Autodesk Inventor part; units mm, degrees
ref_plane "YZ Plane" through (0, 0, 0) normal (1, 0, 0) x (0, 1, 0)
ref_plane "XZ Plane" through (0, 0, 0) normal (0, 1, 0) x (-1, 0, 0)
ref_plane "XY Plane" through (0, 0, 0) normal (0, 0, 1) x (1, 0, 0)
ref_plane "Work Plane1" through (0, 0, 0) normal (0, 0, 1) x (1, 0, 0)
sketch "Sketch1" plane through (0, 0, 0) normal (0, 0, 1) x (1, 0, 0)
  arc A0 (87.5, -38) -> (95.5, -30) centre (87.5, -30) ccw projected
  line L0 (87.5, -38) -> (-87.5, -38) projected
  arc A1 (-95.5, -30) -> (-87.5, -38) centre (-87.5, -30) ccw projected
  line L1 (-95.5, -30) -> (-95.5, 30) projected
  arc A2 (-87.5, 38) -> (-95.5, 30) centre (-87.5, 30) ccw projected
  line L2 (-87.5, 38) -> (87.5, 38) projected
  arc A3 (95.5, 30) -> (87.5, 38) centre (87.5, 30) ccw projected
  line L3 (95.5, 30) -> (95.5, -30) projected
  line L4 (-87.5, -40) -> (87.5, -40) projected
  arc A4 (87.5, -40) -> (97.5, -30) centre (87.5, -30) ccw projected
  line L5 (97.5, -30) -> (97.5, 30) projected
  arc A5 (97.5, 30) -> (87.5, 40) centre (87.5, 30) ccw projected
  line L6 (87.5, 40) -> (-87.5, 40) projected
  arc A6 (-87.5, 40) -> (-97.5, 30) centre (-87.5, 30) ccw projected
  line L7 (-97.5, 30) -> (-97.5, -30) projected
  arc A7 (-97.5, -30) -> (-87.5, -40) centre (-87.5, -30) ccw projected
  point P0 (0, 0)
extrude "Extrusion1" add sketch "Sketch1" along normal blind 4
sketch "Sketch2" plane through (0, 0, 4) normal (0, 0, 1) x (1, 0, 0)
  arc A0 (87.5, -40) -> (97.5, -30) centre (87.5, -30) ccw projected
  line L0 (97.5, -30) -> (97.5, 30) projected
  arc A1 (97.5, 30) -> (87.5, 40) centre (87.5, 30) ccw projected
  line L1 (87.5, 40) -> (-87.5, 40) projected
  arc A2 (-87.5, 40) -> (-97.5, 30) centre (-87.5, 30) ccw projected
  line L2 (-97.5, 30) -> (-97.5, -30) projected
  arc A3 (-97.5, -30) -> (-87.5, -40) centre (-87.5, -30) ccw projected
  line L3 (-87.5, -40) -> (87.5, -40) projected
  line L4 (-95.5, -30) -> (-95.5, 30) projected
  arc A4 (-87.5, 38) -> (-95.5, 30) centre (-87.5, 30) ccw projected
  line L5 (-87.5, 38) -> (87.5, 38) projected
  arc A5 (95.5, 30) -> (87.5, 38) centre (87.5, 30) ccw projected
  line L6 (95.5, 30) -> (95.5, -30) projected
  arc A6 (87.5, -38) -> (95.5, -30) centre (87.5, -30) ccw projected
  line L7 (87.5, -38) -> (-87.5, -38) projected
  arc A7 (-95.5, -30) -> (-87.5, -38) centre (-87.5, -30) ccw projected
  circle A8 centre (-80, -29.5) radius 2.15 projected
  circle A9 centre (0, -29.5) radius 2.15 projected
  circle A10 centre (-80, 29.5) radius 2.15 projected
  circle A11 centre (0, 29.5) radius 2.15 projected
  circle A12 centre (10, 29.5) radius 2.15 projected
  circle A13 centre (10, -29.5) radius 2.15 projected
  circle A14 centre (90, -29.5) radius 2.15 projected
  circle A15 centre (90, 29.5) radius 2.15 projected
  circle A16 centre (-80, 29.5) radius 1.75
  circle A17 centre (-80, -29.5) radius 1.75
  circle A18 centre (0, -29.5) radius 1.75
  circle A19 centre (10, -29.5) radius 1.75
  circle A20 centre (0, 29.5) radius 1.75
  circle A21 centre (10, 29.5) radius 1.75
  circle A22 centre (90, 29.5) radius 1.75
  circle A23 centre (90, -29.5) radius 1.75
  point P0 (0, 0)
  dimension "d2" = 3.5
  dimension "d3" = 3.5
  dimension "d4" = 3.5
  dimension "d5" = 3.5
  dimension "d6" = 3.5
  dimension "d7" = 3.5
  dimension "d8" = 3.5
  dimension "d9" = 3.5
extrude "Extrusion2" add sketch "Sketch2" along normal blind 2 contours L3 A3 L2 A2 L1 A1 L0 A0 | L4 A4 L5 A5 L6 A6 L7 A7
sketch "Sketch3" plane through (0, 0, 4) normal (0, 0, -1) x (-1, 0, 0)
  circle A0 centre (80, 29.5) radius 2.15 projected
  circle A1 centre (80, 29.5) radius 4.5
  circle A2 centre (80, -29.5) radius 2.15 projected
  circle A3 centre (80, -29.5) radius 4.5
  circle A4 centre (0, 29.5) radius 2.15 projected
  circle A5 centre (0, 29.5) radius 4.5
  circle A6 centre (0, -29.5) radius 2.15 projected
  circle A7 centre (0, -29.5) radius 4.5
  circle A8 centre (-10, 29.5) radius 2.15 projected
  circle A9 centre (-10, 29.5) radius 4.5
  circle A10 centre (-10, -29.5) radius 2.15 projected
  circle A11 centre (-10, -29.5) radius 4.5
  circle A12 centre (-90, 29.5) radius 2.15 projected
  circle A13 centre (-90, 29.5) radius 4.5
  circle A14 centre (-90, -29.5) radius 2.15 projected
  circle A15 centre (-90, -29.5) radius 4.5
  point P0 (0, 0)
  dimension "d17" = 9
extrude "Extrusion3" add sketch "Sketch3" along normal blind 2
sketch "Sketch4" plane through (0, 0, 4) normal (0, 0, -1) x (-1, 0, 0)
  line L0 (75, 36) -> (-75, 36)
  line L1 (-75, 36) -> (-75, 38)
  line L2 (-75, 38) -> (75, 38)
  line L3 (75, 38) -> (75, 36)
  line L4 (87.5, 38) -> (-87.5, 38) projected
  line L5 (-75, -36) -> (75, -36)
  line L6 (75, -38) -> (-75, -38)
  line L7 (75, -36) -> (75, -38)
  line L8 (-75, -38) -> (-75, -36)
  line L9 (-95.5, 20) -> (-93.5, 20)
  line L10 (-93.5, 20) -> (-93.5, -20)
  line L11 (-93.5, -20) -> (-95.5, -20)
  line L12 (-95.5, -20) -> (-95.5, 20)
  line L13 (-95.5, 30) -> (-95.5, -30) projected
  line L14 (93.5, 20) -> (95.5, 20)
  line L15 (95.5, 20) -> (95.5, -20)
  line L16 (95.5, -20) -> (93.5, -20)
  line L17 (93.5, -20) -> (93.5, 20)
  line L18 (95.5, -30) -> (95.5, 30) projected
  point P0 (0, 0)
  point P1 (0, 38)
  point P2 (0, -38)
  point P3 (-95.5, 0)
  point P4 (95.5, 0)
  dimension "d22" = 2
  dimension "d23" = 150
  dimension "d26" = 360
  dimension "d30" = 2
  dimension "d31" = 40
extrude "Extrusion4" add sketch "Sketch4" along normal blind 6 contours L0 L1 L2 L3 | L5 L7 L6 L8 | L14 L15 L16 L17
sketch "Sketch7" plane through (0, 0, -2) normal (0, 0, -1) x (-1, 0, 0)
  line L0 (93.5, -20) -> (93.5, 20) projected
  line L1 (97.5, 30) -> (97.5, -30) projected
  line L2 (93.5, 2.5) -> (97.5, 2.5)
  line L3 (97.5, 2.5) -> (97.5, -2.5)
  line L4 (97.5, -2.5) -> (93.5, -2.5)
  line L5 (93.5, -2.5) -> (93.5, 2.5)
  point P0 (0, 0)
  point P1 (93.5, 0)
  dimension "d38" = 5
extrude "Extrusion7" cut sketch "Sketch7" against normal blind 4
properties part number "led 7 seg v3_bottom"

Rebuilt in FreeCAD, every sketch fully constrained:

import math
import FreeCAD as App
import Part
import Sketcher

V = App.Vector
Q = App.Units.Quantity

doc = App.newDocument("Part")
params = doc.addObject("Spreadsheet::Sheet", "Params")
for row, (alias, value) in enumerate([
    ("sketch1_radius", "10 mm"),
    ("sketch1_radius2", "8 mm"),
    ("sketch1_width", "175 mm"),
    ("sketch1_height", "60 mm"),
    ("pad1_length", "4 mm"),
    ("sketch2_radius", "10 mm"),
    ("sketch2_diameter", "4.3 mm"),
    ("sketch2_width", "175 mm"),
    ("sketch2_height", "60 mm"),
    ("pad2_length", "2 mm"),
    ("sketch3_diameter", "9 mm"),
    ("sketch3_diameter2", "4.3 mm"),
    ("pad3_length", "2 mm"),
    ("sketch4_width", "150 mm"),
    ("sketch4_width2", "2 mm"),
    ("sketch4_height", "40 mm"),
    ("pad4_length", "6 mm"),
    ("sketch5_height", "5 mm"),
    ("sketch5_width", "4 mm"),
    ("pocket1_length", "4 mm"),
], start=1):
    params.set(f"A{row}", alias)
    params.set(f"B{row}", "=" + value)
    params.setAlias(f"B{row}", alias)

body = doc.addObject("PartDesign::Body", "Body")

# Sketch on XY plane
sketch1 = doc.addObject("Sketcher::SketchObject", "Sketch")
body.addObject(sketch1)
sketch1.AttachmentSupport = (doc.XY_Plane, [""])
sketch1.MapMode = "FlatFace"
sketch1.addGeometry([
    Part.ArcOfCircle(Part.Circle(V(-88, -30, 0), V(0, 0, 1), 10), math.radians(180), math.radians(270)),  # 0
    Part.LineSegment(V(-88, -40, 0), V(88, -40, 0)),  # 1
    Part.ArcOfCircle(Part.Circle(V(88, -30, 0), V(0, 0, 1), 10), math.radians(-90), math.radians(0)),  # 2
    Part.LineSegment(V(98, -30, 0), V(98, 30, 0)),  # 3
    Part.ArcOfCircle(Part.Circle(V(88, 30, 0), V(0, 0, 1), 10), math.radians(0), math.radians(90)),  # 4
    Part.LineSegment(V(88, 40, 0), V(-88, 40, 0)),  # 5
    Part.ArcOfCircle(Part.Circle(V(-88, 30, 0), V(0, 0, 1), 10), math.radians(90), math.radians(180)),  # 6
    Part.LineSegment(V(-98, 30, 0), V(-98, -30, 0)),  # 7
    Part.ArcOfCircle(Part.Circle(V(88, -30, 0), V(0, 0, 1), 8), math.radians(-90), math.radians(0)),  # 8
    Part.LineSegment(V(88, -38, 0), V(-88, -38, 0)),  # 9
    Part.ArcOfCircle(Part.Circle(V(-88, -30, 0), V(0, 0, 1), 8), math.radians(180), math.radians(270)),  # 10
    Part.LineSegment(V(-96, -30, 0), V(-96, 30, 0)),  # 11
    Part.ArcOfCircle(Part.Circle(V(-88, 30, 0), V(0, 0, 1), 8), math.radians(90), math.radians(180)),  # 12
    Part.LineSegment(V(-88, 38, 0), V(88, 38, 0)),  # 13
    Part.ArcOfCircle(Part.Circle(V(88, 30, 0), V(0, 0, 1), 8), math.radians(0), math.radians(90)),  # 14
    Part.LineSegment(V(96, 30, 0), V(96, -30, 0)),  # 15
], False)
sketch1.addConstraint([
    Sketcher.Constraint("Tangent", 0, 2, 1, 1),
    Sketcher.Constraint("Tangent", 1, 2, 2, 1),
    Sketcher.Constraint("Tangent", 2, 2, 3, 1),
    Sketcher.Constraint("Tangent", 3, 2, 4, 1),
    Sketcher.Constraint("Tangent", 4, 2, 5, 1),
    Sketcher.Constraint("Tangent", 5, 2, 6, 1),
    Sketcher.Constraint("Tangent", 6, 2, 7, 1),
    Sketcher.Constraint("Tangent", 7, 2, 0, 1),
    Sketcher.Constraint("Tangent", 8, 1, 9, 1),
    Sketcher.Constraint("Tangent", 9, 2, 10, 2),
    Sketcher.Constraint("Tangent", 10, 1, 11, 1),
    Sketcher.Constraint("Tangent", 11, 2, 12, 2),
    Sketcher.Constraint("Tangent", 12, 1, 13, 1),
    Sketcher.Constraint("Tangent", 13, 2, 14, 2),
    Sketcher.Constraint("Tangent", 14, 1, 15, 1),
    Sketcher.Constraint("Tangent", 15, 2, 8, 2),
    Sketcher.Constraint("Horizontal", 1),
    Sketcher.Constraint("Vertical", 3),
    Sketcher.Constraint("Horizontal", 5),
    Sketcher.Constraint("Vertical", 7),
    Sketcher.Constraint("Horizontal", 9),
    Sketcher.Constraint("Vertical", 11),
    Sketcher.Constraint("Horizontal", 13),
    Sketcher.Constraint("Vertical", 15),
    Sketcher.Constraint("Coincident", 8, 3, 2, 3),
    Sketcher.Constraint("Coincident", 10, 3, 0, 3),
    Sketcher.Constraint("Coincident", 12, 3, 6, 3),
    Sketcher.Constraint("Equal", 0, 2),
    Sketcher.Constraint("Equal", 2, 4),
    Sketcher.Constraint("Equal", 4, 6),
    Sketcher.Constraint("Equal", 12, 14),
    Sketcher.Constraint("Symmetric", 0, 3, 4, 3, -1, 1),
    Sketcher.Constraint("Radius", 0, Q("10 mm")),
    Sketcher.Constraint("Radius", 8, Q("8 mm")),
    Sketcher.Constraint("DistanceX", 1, 1, 1, 2, Q("175 mm")),
    Sketcher.Constraint("DistanceY", 3, 1, 3, 2, Q("60 mm")),
])
sketch1.setExpression("Constraints[32]", "Params.sketch1_radius")
sketch1.setExpression("Constraints[33]", "Params.sketch1_radius2")
sketch1.setExpression("Constraints[34]", "Params.sketch1_width")
sketch1.setExpression("Constraints[35]", "Params.sketch1_height")
pad1 = doc.addObject("PartDesign::Pad", "Pad")
body.addObject(pad1)
pad1.Profile = sketch1
pad1.setExpression("Length", "Params.pad1_length")

# Sketch on XY plane
sketch2 = doc.addObject("Sketcher::SketchObject", "Sketch001")
body.addObject(sketch2)
sketch2.AttachmentSupport = (doc.XY_Plane, [""])
sketch2.MapMode = "FlatFace"
sketch2.AttachmentOffset = App.Placement(V(0, 0, 4), App.Rotation())
sketch2.addGeometry([
    Part.LineSegment(V(-87.5, -40, 0), V(87.5, -40, 0)),  # 0
    Part.ArcOfCircle(Part.Circle(V(87.5, -30, 0), V(0, 0, 1), 10), math.radians(-90), math.radians(0)),  # 1
    Part.LineSegment(V(97.5, -30, 0), V(97.5, 30, 0)),  # 2
    Part.ArcOfCircle(Part.Circle(V(87.5, 30, 0), V(0, 0, 1), 10), math.radians(0), math.radians(90)),  # 3
    Part.LineSegment(V(87.5, 40, 0), V(-87.5, 40, 0)),  # 4
    Part.ArcOfCircle(Part.Circle(V(-87.5, 30, 0), V(0, 0, 1), 10), math.radians(90), math.radians(180)),  # 5
    Part.LineSegment(V(-97.5, 30, 0), V(-97.5, -30, 0)),  # 6
    Part.ArcOfCircle(Part.Circle(V(-87.5, -30, 0), V(0, 0, 1), 10), math.radians(180), math.radians(270)),  # 7
    Part.Circle(V(-80, -29.5, 0), V(0, 0, 1), 2.1),  # 8
    Part.Circle(V(0, -29.5, 0), V(0, 0, 1), 2.1),  # 9
    Part.Circle(V(10, -29.5, 0), V(0, 0, 1), 2.1),  # 10
    Part.Circle(V(90, -29.5, 0), V(0, 0, 1), 2.1),  # 11
    Part.Circle(V(-80, 29.5, 0), V(0, 0, 1), 2.1),  # 12
    Part.Circle(V(0, 29.5, 0), V(0, 0, 1), 2.1),  # 13
    Part.Circle(V(10, 29.5, 0), V(0, 0, 1), 2.1),  # 14
    Part.Circle(V(90, 29.5, 0), V(0, 0, 1), 2.1),  # 15
], False)
sketch2.addConstraint([
    Sketcher.Constraint("Tangent", 0, 2, 1, 1),
    Sketcher.Constraint("Tangent", 1, 2, 2, 1),
    Sketcher.Constraint("Tangent", 2, 2, 3, 1),
    Sketcher.Constraint("Tangent", 3, 2, 4, 1),
    Sketcher.Constraint("Tangent", 4, 2, 5, 1),
    Sketcher.Constraint("Tangent", 5, 2, 6, 1),
    Sketcher.Constraint("Tangent", 6, 2, 7, 1),
    Sketcher.Constraint("Tangent", 7, 2, 0, 1),
    Sketcher.Constraint("Horizontal", 0),
    Sketcher.Constraint("Vertical", 2),
    Sketcher.Constraint("Horizontal", 4),
    Sketcher.Constraint("Vertical", 6),
    Sketcher.Constraint("Equal", 1, 3),
    Sketcher.Constraint("Equal", 3, 5),
    Sketcher.Constraint("Equal", 5, 7),
    Sketcher.Constraint("Equal", 8, 9),
    Sketcher.Constraint("Equal", 9, 10),
    Sketcher.Constraint("Equal", 10, 11),
    Sketcher.Constraint("Equal", 11, 12),
    Sketcher.Constraint("Equal", 12, 13),
    Sketcher.Constraint("Equal", 13, 14),
    Sketcher.Constraint("Equal", 14, 15),
    Sketcher.Constraint("Symmetric", 1, 3, 5, 3, -1, 1),
    Sketcher.Constraint("Symmetric", 9, 3, 13, 3, -1, 1),
    Sketcher.Constraint("Symmetric", 8, 3, 12, 3, -1),
    Sketcher.Constraint("Symmetric", 10, 3, 14, 3, -1),
    Sketcher.Constraint("Symmetric", 11, 3, 15, 3, -1),
    Sketcher.Constraint("PointOnObject", 9, 3, -2),
    Sketcher.Constraint("Horizontal", 8, 3, 9, 3),
    Sketcher.Constraint("Horizontal", 9, 3, 10, 3),
    Sketcher.Constraint("Horizontal", 10, 3, 11, 3),
    Sketcher.Constraint("Radius", 1, Q("10 mm")),
    Sketcher.Constraint("Diameter", 8, Q("4.3 mm")),
    Sketcher.Constraint("DistanceX", 0, 1, 0, 2, Q("175 mm")),
    Sketcher.Constraint("DistanceY", 2, 1, 2, 2, Q("60 mm")),
    Sketcher.Constraint("DistanceX", 8, 3, -1, 1, Q("80 mm")),
    Sketcher.Constraint("DistanceX", -1, 1, 10, 3, Q("10 mm")),
    Sketcher.Constraint("DistanceX", -1, 1, 11, 3, Q("90 mm")),
    Sketcher.Constraint("DistanceY", 8, 3, 12, 3, Q("59 mm")),
])
sketch2.setExpression("Constraints[31]", "Params.sketch2_radius")
sketch2.setExpression("Constraints[32]", "Params.sketch2_diameter")
sketch2.setExpression("Constraints[33]", "Params.sketch2_width")
sketch2.setExpression("Constraints[34]", "Params.sketch2_height")
pad2 = doc.addObject("PartDesign::Pad", "Pad001")
body.addObject(pad2)
pad2.Profile = sketch2
pad2.setExpression("Length", "Params.pad2_length")

# Sketch on XY plane
sketch3 = doc.addObject("Sketcher::SketchObject", "Sketch002")
body.addObject(sketch3)
sketch3.AttachmentSupport = (doc.XY_Plane, [""])
sketch3.MapMode = "FlatFace"
sketch3.AttachmentOffset = App.Placement(V(0, 0, 4), App.Rotation())
sketch3.addGeometry([
    Part.Circle(V(-80, 29.5, 0), V(0, 0, 1), 4.5),  # 0
    Part.Circle(V(-80, 29.5, 0), V(0, 0, 1), 2.1),  # 1
    Part.Circle(V(-80, -29.5, 0), V(0, 0, 1), 4.5),  # 2
    Part.Circle(V(-80, -29.5, 0), V(0, 0, 1), 2.1),  # 3
    Part.Circle(V(0, 29.5, 0), V(0, 0, 1), 4.5),  # 4
    Part.Circle(V(0, 29.5, 0), V(0, 0, 1), 2.1),  # 5
    Part.Circle(V(0, -29.5, 0), V(0, 0, 1), 4.5),  # 6
    Part.Circle(V(0, -29.5, 0), V(0, 0, 1), 2.1),  # 7
    Part.Circle(V(10, 29.5, 0), V(0, 0, 1), 4.5),  # 8
    Part.Circle(V(10, 29.5, 0), V(0, 0, 1), 2.1),  # 9
    Part.Circle(V(10, -29.5, 0), V(0, 0, 1), 4.5),  # 10
    Part.Circle(V(10, -29.5, 0), V(0, 0, 1), 2.1),  # 11
    Part.Circle(V(90, 29.5, 0), V(0, 0, 1), 4.5),  # 12
    Part.Circle(V(90, 29.5, 0), V(0, 0, 1), 2.1),  # 13
    Part.Circle(V(90, -29.5, 0), V(0, 0, 1), 4.5),  # 14
    Part.Circle(V(90, -29.5, 0), V(0, 0, 1), 2.1),  # 15
], False)
sketch3.addConstraint([
    Sketcher.Constraint("Coincident", 1, 3, 0, 3),
    Sketcher.Constraint("Coincident", 3, 3, 2, 3),
    Sketcher.Constraint("Coincident", 5, 3, 4, 3),
    Sketcher.Constraint("Coincident", 7, 3, 6, 3),
    Sketcher.Constraint("Coincident", 9, 3, 8, 3),
    Sketcher.Constraint("Coincident", 11, 3, 10, 3),
    Sketcher.Constraint("Coincident", 13, 3, 12, 3),
    Sketcher.Constraint("Coincident", 15, 3, 14, 3),
    Sketcher.Constraint("Equal", 0, 2),
    Sketcher.Constraint("Equal", 1, 3),
    Sketcher.Constraint("Equal", 2, 4),
    Sketcher.Constraint("Equal", 3, 5),
    Sketcher.Constraint("Equal", 4, 6),
    Sketcher.Constraint("Equal", 5, 7),
    Sketcher.Constraint("Equal", 6, 8),
    Sketcher.Constraint("Equal", 7, 9),
    Sketcher.Constraint("Equal", 8, 10),
    Sketcher.Constraint("Equal", 9, 11),
    Sketcher.Constraint("Equal", 10, 12),
    Sketcher.Constraint("Equal", 11, 13),
    Sketcher.Constraint("Equal", 12, 14),
    Sketcher.Constraint("Equal", 13, 15),
    Sketcher.Constraint("Symmetric", 4, 3, 6, 3, -1, 1),
    Sketcher.Constraint("Symmetric", 0, 3, 2, 3, -1),
    Sketcher.Constraint("Symmetric", 8, 3, 10, 3, -1),
    Sketcher.Constraint("Symmetric", 12, 3, 14, 3, -1),
    Sketcher.Constraint("PointOnObject", 4, 3, -2),
    Sketcher.Constraint("Horizontal", 1, 3, 4, 3),
    Sketcher.Constraint("Horizontal", 5, 3, 8, 3),
    Sketcher.Constraint("Horizontal", 9, 3, 12, 3),
    Sketcher.Constraint("Diameter", 0, Q("9 mm")),
    Sketcher.Constraint("Diameter", 1, Q("4.3 mm")),
    Sketcher.Constraint("DistanceX", 0, 3, -1, 1, Q("80 mm")),
    Sketcher.Constraint("DistanceX", -1, 1, 8, 3, Q("10 mm")),
    Sketcher.Constraint("DistanceX", -1, 1, 12, 3, Q("90 mm")),
    Sketcher.Constraint("DistanceY", 2, 3, 0, 3, Q("59 mm")),
])
sketch3.setExpression("Constraints[30]", "Params.sketch3_diameter")
sketch3.setExpression("Constraints[31]", "Params.sketch3_diameter2")
pad3 = doc.addObject("PartDesign::Pad", "Pad002")
body.addObject(pad3)
pad3.Profile = sketch3
pad3.setExpression("Length", "Params.pad3_length")
pad3.Reversed = True

# Sketch on XY plane
sketch4 = doc.addObject("Sketcher::SketchObject", "Sketch003")
body.addObject(sketch4)
sketch4.AttachmentSupport = (doc.XY_Plane, [""])
sketch4.MapMode = "FlatFace"
sketch4.AttachmentOffset = App.Placement(V(0, 0, 4), App.Rotation())
sketch4.addGeometry([
    Part.LineSegment(V(75, 36, 0), V(-75, 36, 0)),  # 0
    Part.LineSegment(V(-75, 36, 0), V(-75, 38, 0)),  # 1
    Part.LineSegment(V(-75, 38, 0), V(75, 38, 0)),  # 2
    Part.LineSegment(V(75, 38, 0), V(75, 36, 0)),  # 3
    Part.LineSegment(V(-75, -36, 0), V(75, -36, 0)),  # 4
    Part.LineSegment(V(75, -36, 0), V(75, -38, 0)),  # 5
    Part.LineSegment(V(75, -38, 0), V(-75, -38, 0)),  # 6
    Part.LineSegment(V(-75, -38, 0), V(-75, -36, 0)),  # 7
    Part.LineSegment(V(-95.5, 20, 0), V(-93.5, 20, 0)),  # 8
    Part.LineSegment(V(-93.5, 20, 0), V(-93.5, -20, 0)),  # 9
    Part.LineSegment(V(-93.5, -20, 0), V(-95.5, -20, 0)),  # 10
    Part.LineSegment(V(-95.5, -20, 0), V(-95.5, 20, 0)),  # 11
], False)
sketch4.addConstraint([
    Sketcher.Constraint("Coincident", 0, 2, 1, 1),
    Sketcher.Constraint("Coincident", 1, 2, 2, 1),
    Sketcher.Constraint("Coincident", 2, 2, 3, 1),
    Sketcher.Constraint("Coincident", 3, 2, 0, 1),
    Sketcher.Constraint("Coincident", 4, 2, 5, 1),
    Sketcher.Constraint("Coincident", 5, 2, 6, 1),
    Sketcher.Constraint("Coincident", 6, 2, 7, 1),
    Sketcher.Constraint("Coincident", 7, 2, 4, 1),
    Sketcher.Constraint("Coincident", 8, 2, 9, 1),
    Sketcher.Constraint("Coincident", 9, 2, 10, 1),
    Sketcher.Constraint("Coincident", 10, 2, 11, 1),
    Sketcher.Constraint("Coincident", 11, 2, 8, 1),
    Sketcher.Constraint("Horizontal", 0),
    Sketcher.Constraint("Vertical", 1),
    Sketcher.Constraint("Horizontal", 2),
    Sketcher.Constraint("Vertical", 3),
    Sketcher.Constraint("Horizontal", 4),
    Sketcher.Constraint("Vertical", 5),
    Sketcher.Constraint("Horizontal", 6),
    Sketcher.Constraint("Vertical", 7),
    Sketcher.Constraint("Horizontal", 8),
    Sketcher.Constraint("Vertical", 9),
    Sketcher.Constraint("Horizontal", 10),
    Sketcher.Constraint("Vertical", 11),
    Sketcher.Constraint("Symmetric", 0, 2, 4, 2, -1, 1),
    Sketcher.Constraint("Symmetric", 2, 2, 6, 2, -1, 1),
    Sketcher.Constraint("Vertical", 3, 2, 4, 2),
    Sketcher.Constraint("Equal", 10, 1),
    Sketcher.Constraint("DistanceX", 0, 2, 0, 1, Q("150 mm")),
    Sketcher.Constraint("DistanceX", 8, 1, 8, 2, Q("2 mm")),
    Sketcher.Constraint("DistanceY", 9, 2, 9, 1, Q("40 mm")),
    Sketcher.Constraint("DistanceY", -1, 1, 0, 2, Q("36 mm")),
    Sketcher.Constraint("DistanceY", -1, 1, 8, 2, Q("20 mm")),
    Sketcher.Constraint("DistanceX", 8, 2, -1, 1, Q("93.5 mm")),
])
sketch4.setExpression("Constraints[28]", "Params.sketch4_width")
sketch4.setExpression("Constraints[29]", "Params.sketch4_width2")
sketch4.setExpression("Constraints[30]", "Params.sketch4_height")
pad4 = doc.addObject("PartDesign::Pad", "Pad003")
body.addObject(pad4)
pad4.Profile = sketch4
pad4.setExpression("Length", "Params.pad4_length")
pad4.Reversed = True

# Sketch on XY plane
sketch5 = doc.addObject("Sketcher::SketchObject", "Sketch004")
body.addObject(sketch5)
sketch5.AttachmentSupport = (doc.XY_Plane, [""])
sketch5.MapMode = "FlatFace"
sketch5.AttachmentOffset = App.Placement(V(0, 0, -2), App.Rotation())
sketch5.addGeometry([
    Part.LineSegment(V(-93.5, 2.5, 0), V(-93.5, -2.5, 0)),
    Part.LineSegment(V(-93.5, -2.5, 0), V(-97.5, -2.5, 0)),
    Part.LineSegment(V(-97.5, -2.5, 0), V(-97.5, 2.5, 0)),
    Part.LineSegment(V(-97.5, 2.5, 0), V(-93.5, 2.5, 0)),
], False)
sketch5.addConstraint([
    Sketcher.Constraint("Coincident", 0, 2, 1, 1),
    Sketcher.Constraint("Coincident", 1, 2, 2, 1),
    Sketcher.Constraint("Coincident", 2, 2, 3, 1),
    Sketcher.Constraint("Coincident", 3, 2, 0, 1),
    Sketcher.Constraint("Vertical", 0),
    Sketcher.Constraint("Horizontal", 1),
    Sketcher.Constraint("Vertical", 2),
    Sketcher.Constraint("Horizontal", 3),
    Sketcher.Constraint("DistanceY", 0, 2, 0, 1, Q("5 mm")),
    Sketcher.Constraint("DistanceX", 1, 2, 1, 1, Q("4 mm")),
    Sketcher.Constraint("DistanceX", 0, 2, -1, 1, Q("93.5 mm")),
    Sketcher.Constraint("DistanceY", 0, 2, -1, 1, Q("2.5 mm")),
])
sketch5.setExpression("Constraints[8]", "Params.sketch5_height")
sketch5.setExpression("Constraints[9]", "Params.sketch5_width")
pocket1 = doc.addObject("PartDesign::Pocket", "Pocket")
body.addObject(pocket1)
pocket1.Profile = sketch5
pocket1.setExpression("Length", "Params.pocket1_length")
pocket1.Reversed = True

doc.recompute()
